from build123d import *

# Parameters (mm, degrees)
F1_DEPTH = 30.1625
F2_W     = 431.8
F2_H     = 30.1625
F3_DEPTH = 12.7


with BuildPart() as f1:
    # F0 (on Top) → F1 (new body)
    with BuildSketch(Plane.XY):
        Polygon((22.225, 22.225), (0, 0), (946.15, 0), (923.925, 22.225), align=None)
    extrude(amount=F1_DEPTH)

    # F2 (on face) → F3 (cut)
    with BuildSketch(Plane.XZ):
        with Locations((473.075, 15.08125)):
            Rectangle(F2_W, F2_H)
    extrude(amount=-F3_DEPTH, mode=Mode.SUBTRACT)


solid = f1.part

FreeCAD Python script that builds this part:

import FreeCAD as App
import Part
import Sketcher
from FreeCAD import Vector
Q = App.Units.Quantity

doc = App.newDocument("Part")
body = doc.addObject("PartDesign::Body", "Body")

sketch1 = body.newObject("Sketcher::SketchObject", "Sketch")
sketch1.AttachmentSupport = (doc.getObject("XY_Plane"), [""])
sketch1.MapMode = "FlatFace"
sketch1.addGeometry([
    Part.LineSegment(Vector(22, 22, 0), Vector(0, 0, 0)),
    Part.LineSegment(Vector(0, 0, 0), Vector(946, 0, 0)),
    Part.LineSegment(Vector(946, 0, 0), Vector(924, 22, 0)),
    Part.LineSegment(Vector(924, 22, 0), Vector(22, 22, 0)),
], False)
sketch1.addConstraint([
    Sketcher.Constraint("Coincident", 0, 2, 1, 1),
    Sketcher.Constraint("Coincident", 1, 2, 2, 1),
    Sketcher.Constraint("Coincident", 2, 2, 3, 1),
    Sketcher.Constraint("Coincident", 3, 2, 0, 1),
    Sketcher.Constraint("Horizontal", 1),
    Sketcher.Constraint("Horizontal", 3),
    Sketcher.Constraint("Coincident", 0, 2, -1, 1),
    Sketcher.Constraint("Perpendicular", 0, 2),
    Sketcher.Constraint("Equal", 0, 2),
    Sketcher.Constraint("DistanceX", 3, 2, 3, 1, Q("35.5 in")),
    Sketcher.Constraint("DistanceX", 1, 1, 1, 2, Q("37.25 in")),
])
pad1 = body.newObject("PartDesign::Pad", "Pad")
pad1.Profile = sketch1
pad1.Length = Q("1.1875 in")

sketch2 = body.newObject("Sketcher::SketchObject", "Sketch001")
sketch2.AttachmentSupport = (doc.getObject("XZ_Plane"), [""])
sketch2.MapMode = "FlatFace"
sketch2.addGeometry([
    Part.LineSegment(Vector(257, 30, 0), Vector(257, 0, 0)),
    Part.LineSegment(Vector(257, 0, 0), Vector(689, 0, 0)),
    Part.LineSegment(Vector(689, 0, 0), Vector(689, 30, 0)),
    Part.LineSegment(Vector(689, 30, 0), Vector(257, 30, 0)),
], False)
sketch2.addConstraint([
    Sketcher.Constraint("Coincident", 0, 2, 1, 1),
    Sketcher.Constraint("Coincident", 1, 2, 2, 1),
    Sketcher.Constraint("Coincident", 2, 2, 3, 1),
    Sketcher.Constraint("Coincident", 3, 2, 0, 1),
    Sketcher.Constraint("Vertical", 0),
    Sketcher.Constraint("Horizontal", 1),
    Sketcher.Constraint("Vertical", 2),
    Sketcher.Constraint("Horizontal", 3),
    Sketcher.Constraint("PointOnObject", 0, 2, -1),
    Sketcher.Constraint("DistanceX", 1, 1, 1, 2, Q("17 in")),
    Sketcher.Constraint("DistanceY", 0, 2, 0, 1, Q("1.1875 in")),
    Sketcher.Constraint("DistanceX", -1, 1, 0, 2, Q("10.125 in")),
])
pocket1 = body.newObject("PartDesign::Pocket", "Pocket")
pocket1.Profile = sketch2
pocket1.Length = Q("0.5 in")

doc.recompute()
